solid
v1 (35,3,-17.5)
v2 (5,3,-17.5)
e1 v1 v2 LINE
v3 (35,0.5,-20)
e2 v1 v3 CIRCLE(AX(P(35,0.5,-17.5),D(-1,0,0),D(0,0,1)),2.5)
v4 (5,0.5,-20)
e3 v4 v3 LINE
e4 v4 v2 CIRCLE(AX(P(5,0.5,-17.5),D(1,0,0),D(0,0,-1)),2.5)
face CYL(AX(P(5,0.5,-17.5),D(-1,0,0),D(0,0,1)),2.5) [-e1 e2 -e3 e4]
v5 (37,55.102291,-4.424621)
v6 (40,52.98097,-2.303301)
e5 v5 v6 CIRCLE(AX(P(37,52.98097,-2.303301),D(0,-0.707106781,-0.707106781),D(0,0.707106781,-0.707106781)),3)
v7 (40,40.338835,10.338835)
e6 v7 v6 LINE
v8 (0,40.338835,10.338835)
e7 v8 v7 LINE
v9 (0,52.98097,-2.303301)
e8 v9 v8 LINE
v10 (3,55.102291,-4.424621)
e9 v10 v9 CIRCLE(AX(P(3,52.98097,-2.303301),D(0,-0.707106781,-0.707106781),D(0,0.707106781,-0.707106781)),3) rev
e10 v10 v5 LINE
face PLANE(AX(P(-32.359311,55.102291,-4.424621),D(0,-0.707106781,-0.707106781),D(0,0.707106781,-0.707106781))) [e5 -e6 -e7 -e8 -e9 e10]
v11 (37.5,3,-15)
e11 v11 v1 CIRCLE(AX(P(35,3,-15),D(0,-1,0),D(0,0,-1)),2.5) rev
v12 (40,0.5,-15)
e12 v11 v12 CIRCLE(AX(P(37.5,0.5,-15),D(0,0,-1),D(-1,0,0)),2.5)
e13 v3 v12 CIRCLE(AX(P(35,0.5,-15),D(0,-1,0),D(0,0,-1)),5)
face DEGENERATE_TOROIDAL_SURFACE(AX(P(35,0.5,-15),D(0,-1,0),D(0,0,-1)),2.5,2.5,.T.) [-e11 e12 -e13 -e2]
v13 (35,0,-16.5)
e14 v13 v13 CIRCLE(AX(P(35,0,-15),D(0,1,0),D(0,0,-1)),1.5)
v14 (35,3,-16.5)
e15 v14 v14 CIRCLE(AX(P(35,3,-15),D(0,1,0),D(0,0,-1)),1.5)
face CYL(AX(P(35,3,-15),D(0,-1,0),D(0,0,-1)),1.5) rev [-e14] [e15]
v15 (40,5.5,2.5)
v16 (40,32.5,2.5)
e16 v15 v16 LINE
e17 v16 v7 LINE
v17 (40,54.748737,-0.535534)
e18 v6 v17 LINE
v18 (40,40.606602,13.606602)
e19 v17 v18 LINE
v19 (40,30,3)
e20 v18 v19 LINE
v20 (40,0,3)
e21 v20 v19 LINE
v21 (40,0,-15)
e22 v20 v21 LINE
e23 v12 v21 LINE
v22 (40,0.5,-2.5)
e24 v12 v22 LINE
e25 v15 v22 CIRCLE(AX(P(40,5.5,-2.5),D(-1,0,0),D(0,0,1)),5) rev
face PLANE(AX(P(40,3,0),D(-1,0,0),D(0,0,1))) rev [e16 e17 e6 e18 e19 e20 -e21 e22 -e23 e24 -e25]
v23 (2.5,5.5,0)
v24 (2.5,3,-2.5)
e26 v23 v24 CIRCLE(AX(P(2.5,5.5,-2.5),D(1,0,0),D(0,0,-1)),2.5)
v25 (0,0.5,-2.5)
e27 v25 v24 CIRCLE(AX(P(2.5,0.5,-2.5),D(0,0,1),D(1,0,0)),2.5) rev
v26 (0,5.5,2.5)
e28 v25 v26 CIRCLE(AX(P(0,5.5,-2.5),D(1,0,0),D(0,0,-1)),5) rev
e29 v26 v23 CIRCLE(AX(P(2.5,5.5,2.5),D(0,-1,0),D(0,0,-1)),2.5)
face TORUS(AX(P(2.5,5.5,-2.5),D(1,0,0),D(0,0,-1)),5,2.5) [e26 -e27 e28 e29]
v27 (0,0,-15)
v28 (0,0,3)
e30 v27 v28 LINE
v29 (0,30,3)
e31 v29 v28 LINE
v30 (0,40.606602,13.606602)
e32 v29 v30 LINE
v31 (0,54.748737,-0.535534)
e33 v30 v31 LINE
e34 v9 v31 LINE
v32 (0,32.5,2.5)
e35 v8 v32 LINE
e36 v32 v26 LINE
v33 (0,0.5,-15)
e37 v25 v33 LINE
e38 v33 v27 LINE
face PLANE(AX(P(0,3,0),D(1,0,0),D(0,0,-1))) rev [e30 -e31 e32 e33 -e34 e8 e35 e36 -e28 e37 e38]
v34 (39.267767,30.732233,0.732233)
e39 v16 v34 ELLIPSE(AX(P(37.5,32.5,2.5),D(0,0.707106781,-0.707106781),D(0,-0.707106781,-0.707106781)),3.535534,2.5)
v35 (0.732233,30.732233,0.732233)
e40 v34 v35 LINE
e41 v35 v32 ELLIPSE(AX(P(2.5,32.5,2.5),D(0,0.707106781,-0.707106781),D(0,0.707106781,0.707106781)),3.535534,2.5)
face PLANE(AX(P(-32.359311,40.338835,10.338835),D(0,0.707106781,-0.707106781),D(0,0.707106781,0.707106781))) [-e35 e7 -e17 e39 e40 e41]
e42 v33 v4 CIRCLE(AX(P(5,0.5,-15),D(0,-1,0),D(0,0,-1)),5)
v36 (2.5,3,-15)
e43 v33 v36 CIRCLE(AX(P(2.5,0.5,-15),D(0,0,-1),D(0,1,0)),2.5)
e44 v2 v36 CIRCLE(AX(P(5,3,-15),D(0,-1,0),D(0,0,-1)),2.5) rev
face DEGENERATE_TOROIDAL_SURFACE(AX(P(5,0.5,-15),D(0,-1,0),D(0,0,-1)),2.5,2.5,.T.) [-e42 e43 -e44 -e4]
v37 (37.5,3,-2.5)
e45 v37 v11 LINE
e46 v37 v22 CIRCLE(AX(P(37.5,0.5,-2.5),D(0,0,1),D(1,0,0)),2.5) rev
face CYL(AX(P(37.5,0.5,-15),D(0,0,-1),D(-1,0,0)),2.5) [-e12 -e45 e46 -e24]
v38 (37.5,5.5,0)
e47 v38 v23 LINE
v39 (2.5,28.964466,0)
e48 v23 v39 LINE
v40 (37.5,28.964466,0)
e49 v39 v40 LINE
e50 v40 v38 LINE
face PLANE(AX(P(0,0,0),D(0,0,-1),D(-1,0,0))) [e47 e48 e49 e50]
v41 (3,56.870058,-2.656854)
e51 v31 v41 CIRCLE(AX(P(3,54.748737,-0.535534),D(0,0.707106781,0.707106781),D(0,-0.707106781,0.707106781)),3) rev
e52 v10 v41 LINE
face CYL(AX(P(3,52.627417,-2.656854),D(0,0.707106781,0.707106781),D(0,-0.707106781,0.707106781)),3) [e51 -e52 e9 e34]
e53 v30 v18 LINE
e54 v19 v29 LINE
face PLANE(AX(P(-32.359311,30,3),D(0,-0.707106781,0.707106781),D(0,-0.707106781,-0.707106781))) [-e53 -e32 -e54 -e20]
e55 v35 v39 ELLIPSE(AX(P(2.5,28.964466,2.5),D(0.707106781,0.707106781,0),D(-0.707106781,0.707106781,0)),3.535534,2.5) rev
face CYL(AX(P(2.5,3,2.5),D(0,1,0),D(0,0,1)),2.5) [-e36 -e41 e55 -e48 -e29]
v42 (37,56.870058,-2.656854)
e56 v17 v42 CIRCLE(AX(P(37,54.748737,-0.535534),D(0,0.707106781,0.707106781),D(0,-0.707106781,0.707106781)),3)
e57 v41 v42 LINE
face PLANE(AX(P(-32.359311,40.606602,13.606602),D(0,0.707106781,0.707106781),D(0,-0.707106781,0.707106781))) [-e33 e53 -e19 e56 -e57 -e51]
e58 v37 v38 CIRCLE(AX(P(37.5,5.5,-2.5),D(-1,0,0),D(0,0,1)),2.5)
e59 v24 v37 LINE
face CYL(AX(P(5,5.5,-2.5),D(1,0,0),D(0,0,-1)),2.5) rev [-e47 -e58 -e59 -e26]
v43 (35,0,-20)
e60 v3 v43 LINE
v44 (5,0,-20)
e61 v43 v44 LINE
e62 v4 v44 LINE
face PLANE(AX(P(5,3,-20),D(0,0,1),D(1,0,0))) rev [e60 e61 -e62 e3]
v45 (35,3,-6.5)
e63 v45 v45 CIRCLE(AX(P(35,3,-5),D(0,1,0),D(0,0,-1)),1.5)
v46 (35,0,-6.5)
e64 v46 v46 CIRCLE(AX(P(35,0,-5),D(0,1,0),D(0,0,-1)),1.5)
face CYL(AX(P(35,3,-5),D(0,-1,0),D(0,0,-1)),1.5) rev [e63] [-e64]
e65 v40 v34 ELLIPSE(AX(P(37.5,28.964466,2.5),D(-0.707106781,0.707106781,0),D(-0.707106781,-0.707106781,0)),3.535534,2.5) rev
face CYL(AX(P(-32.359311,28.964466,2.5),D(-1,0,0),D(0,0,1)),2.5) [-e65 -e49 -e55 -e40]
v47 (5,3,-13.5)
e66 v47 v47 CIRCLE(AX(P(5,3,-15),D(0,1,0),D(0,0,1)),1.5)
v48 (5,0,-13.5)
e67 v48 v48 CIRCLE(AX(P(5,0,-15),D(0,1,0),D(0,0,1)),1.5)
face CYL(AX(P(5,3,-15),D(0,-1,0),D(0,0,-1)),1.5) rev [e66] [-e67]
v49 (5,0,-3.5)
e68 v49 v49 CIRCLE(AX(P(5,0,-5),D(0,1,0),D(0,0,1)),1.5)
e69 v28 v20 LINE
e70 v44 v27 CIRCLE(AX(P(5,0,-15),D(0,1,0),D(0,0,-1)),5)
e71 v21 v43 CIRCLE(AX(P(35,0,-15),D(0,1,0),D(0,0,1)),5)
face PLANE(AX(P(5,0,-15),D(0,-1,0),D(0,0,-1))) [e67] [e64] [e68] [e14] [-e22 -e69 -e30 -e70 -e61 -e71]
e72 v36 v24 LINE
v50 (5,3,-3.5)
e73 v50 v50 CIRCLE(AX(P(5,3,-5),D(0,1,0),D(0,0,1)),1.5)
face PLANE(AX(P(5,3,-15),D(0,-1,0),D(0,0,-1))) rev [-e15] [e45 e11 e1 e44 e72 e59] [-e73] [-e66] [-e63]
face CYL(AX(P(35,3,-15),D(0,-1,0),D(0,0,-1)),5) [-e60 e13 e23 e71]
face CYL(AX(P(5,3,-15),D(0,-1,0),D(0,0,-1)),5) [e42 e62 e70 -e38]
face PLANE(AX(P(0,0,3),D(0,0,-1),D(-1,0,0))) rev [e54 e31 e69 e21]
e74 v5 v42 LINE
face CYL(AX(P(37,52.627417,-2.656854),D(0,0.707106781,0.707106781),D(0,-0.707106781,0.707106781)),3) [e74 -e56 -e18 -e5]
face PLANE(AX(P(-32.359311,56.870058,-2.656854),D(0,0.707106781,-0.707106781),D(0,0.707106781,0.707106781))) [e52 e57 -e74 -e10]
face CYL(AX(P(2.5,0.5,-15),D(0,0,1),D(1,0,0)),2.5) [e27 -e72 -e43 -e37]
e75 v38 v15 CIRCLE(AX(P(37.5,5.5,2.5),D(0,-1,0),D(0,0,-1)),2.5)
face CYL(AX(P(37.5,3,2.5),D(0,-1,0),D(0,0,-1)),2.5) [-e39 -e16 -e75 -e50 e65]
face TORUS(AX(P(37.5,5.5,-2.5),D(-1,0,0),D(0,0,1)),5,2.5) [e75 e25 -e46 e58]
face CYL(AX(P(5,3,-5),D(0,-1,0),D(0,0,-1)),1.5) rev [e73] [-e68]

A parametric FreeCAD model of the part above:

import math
import FreeCAD as App
import Part
import Sketcher
from FreeCAD import Vector
Q = App.Units.Quantity


def edges_at(feature, points):
    """Names of the edges that pass closest to the given points."""
    edges = feature.Shape.Edges
    near = lambda p: min(range(len(edges)), key=lambda i: edges[i].distToShape(Part.Vertex(*p))[0])
    return sorted({f"Edge{near(p) + 1}" for p in points})


def add_polygon(sketch, points):
    """Adds a closed chain of lines whose ends are joined by coincident constraints."""
    first, n = sketch.GeometryCount, len(points)
    for a, b in zip(points, points[1:] + points[:1]):
        sketch.addGeometry(Part.LineSegment(App.Vector(*a, 0), App.Vector(*b, 0)), False)
    for i in range(n):
        sketch.addConstraint(Sketcher.Constraint("Coincident", first + i, 2, first + (i + 1) % n, 1))

doc = App.newDocument("Part")
body = doc.addObject("PartDesign::Body", "Body")

sketch1 = body.newObject("Sketcher::SketchObject", "Sketch")
sketch1.AttachmentSupport = (doc.getObject("XZ_Plane"), [""])
sketch1.MapMode = "FlatFace"
sketch1.addGeometry(Part.LineSegment(Vector(40, 0, 0), Vector(40, -15, 0)), False)
sketch1.addGeometry(Part.ArcOfCircle(Part.Circle(Vector(35, -15, 0), Vector(0, 0, 1), 5), math.radians(-90), math.radians(0)), False)
sketch1.addGeometry(Part.LineSegment(Vector(35, -20, 0), Vector(5, -20, 0)), False)
sketch1.addGeometry(Part.ArcOfCircle(Part.Circle(Vector(5, -15, 0), Vector(0, 0, 1), 5), math.radians(180), math.radians(270)), False)
sketch1.addGeometry(Part.LineSegment(Vector(0, -15, 0), Vector(0, 0, 0)), False)
sketch1.addGeometry(Part.LineSegment(Vector(0, 0, 0), Vector(40, 0, 0)), False)
sketch1.addGeometry(Part.Circle(Vector(5, -5, 0), Vector(0, 0, 1), 1.5), False)
sketch1.addGeometry(Part.Circle(Vector(35, -5, 0), Vector(0, 0, 1), 1.5), False)
sketch1.addGeometry(Part.Circle(Vector(5, -15, 0), Vector(0, 0, 1), 1.5), False)
sketch1.addGeometry(Part.Circle(Vector(35, -15, 0), Vector(0, 0, 1), 1.5), False)
sketch1.addConstraint(Sketcher.Constraint("Tangent", 0, 2, 1, 2))
sketch1.addConstraint(Sketcher.Constraint("Tangent", 1, 1, 2, 1))
sketch1.addConstraint(Sketcher.Constraint("Tangent", 2, 2, 3, 2))
sketch1.addConstraint(Sketcher.Constraint("Tangent", 3, 1, 4, 1))
sketch1.addConstraint(Sketcher.Constraint("Coincident", 4, 2, 5, 1))
sketch1.addConstraint(Sketcher.Constraint("Coincident", 5, 2, 0, 1))
sketch1.addConstraint(Sketcher.Constraint("Vertical", 0))
sketch1.addConstraint(Sketcher.Constraint("Horizontal", 2))
sketch1.addConstraint(Sketcher.Constraint("Vertical", 4))
sketch1.addConstraint(Sketcher.Constraint("Horizontal", 5))
sketch1.addConstraint(Sketcher.Constraint("Coincident", 4, 2, -1, 1))
sketch1.addConstraint(Sketcher.Constraint("Coincident", 8, 3, 3, 3))
sketch1.addConstraint(Sketcher.Constraint("Coincident", 9, 3, 1, 3))
sketch1.addConstraint(Sketcher.Constraint("Equal", 1, 3))
sketch1.addConstraint(Sketcher.Constraint("Equal", 6, 7))
sketch1.addConstraint(Sketcher.Constraint("Equal", 7, 8))
sketch1.addConstraint(Sketcher.Constraint("Equal", 8, 9))
sketch1.addConstraint(Sketcher.Constraint("Horizontal", 6, 3, 7, 3))
sketch1.addConstraint(Sketcher.Constraint("Vertical", 3, 3, 6, 3))
sketch1.addConstraint(Sketcher.Constraint("Vertical", 1, 3, 7, 3))
sketch1.addConstraint(Sketcher.Constraint("Diameter", 6, 3.0))
sketch1.addConstraint(Sketcher.Constraint("Radius", 1, 5.0))
sketch1.addConstraint(Sketcher.Constraint("DistanceX", 2, 2, 2, 1, 30.0))
sketch1.addConstraint(Sketcher.Constraint("DistanceY", 0, 2, 0, 1, 15.0))
sketch1.addConstraint(Sketcher.Constraint("DistanceY", 6, 3, -1, 1, 5.0))
pad1 = body.newObject("PartDesign::Pad", "Pad")
pad1.Profile = sketch1
pad1.Length = 3
pad1.Reversed = True

sketch2 = body.newObject("Sketcher::SketchObject", "Sketch001")
sketch2.AttachmentSupport = (doc.getObject("XY_Plane"), [""])
sketch2.MapMode = "FlatFace"
add_polygon(sketch2, [(0, 30), (0, 0), (40, 0), (40, 30)])
sketch2.addConstraint(Sketcher.Constraint("Vertical", 0))
sketch2.addConstraint(Sketcher.Constraint("Horizontal", 1))
sketch2.addConstraint(Sketcher.Constraint("Vertical", 2))
sketch2.addConstraint(Sketcher.Constraint("Horizontal", 3))
sketch2.addConstraint(Sketcher.Constraint("Coincident", 0, 2, -1, 1))
sketch2.addConstraint(Sketcher.Constraint("DistanceX", 1, 1, 1, 2, 40.0))
sketch2.addConstraint(Sketcher.Constraint("DistanceY", 0, 2, 0, 1, 30.0))
pad2 = body.newObject("PartDesign::Pad", "Pad001")
pad2.Profile = sketch2
pad2.Length = 3

sketch3 = body.newObject("Sketcher::SketchObject", "Sketch002")
sketch3.AttachmentSupport = (doc.getObject("YZ_Plane"), [""])
sketch3.MapMode = "FlatFace"
sketch3.AttachmentOffset = App.Placement(Vector(0, 0, 40), App.Rotation())
add_polygon(sketch3, [(40.606602, 13.606602), (30, 3), (30, 0), (40.338835, 10.338835), (55.102291, -4.424621), (56.870058, -2.656854), (42.727922, 11.485281)])
sketch3.addConstraint(Sketcher.Constraint("Vertical", 1))
sketch3.addConstraint(Sketcher.Constraint("PointOnObject", 1, 2, -1))
sketch3.addConstraint(Sketcher.Constraint("Parallel", 0, 2))
sketch3.addConstraint(Sketcher.Constraint("Perpendicular", 2, 3))
sketch3.addConstraint(Sketcher.Constraint("Perpendicular", 3, 4))
sketch3.addConstraint(Sketcher.Constraint("Perpendicular", 4, 5))
sketch3.addConstraint(Sketcher.Constraint("Parallel", 5, 6))
sketch3.addConstraint(Sketcher.Constraint("DistanceY", 1, 2, 1, 1, 3.0))
sketch3.addConstraint(Sketcher.Constraint("Angle", 0, Q("-135 deg")))
sketch3.addConstraint(Sketcher.Constraint("Distance", 0, 15.0))
sketch3.addConstraint(Sketcher.Constraint("Distance", 5, 20.0))
sketch3.addConstraint(Sketcher.Constraint("Distance", 6, 3.0))
sketch3.addConstraint(Sketcher.Constraint("DistanceX", -1, 1, 0, 2, 30.0))
sketch3.addConstraint(Sketcher.Constraint("Distance", 4, 2.5))
pad3 = body.newObject("PartDesign::Pad", "Pad002")
pad3.Profile = sketch3
pad3.Length = 40
pad3.Reversed = True

sketch4 = body.newObject("Sketcher::SketchObject", "Sketch003")
sketch4.Placement = App.Placement(Vector(0, 27.106602, 27.106602), App.Rotation(Vector(1, 0, 0), Vector(0, 0.707106781, -0.707106781), Vector(0, 0.707106781, 0.707106781), "ZXY"))
sketch4.addGeometry(Part.LineSegment(Vector(3, 42.091883, 0), Vector(0, 42.091883, 0)), False)
sketch4.addGeometry(Part.LineSegment(Vector(0, 42.091883, 0), Vector(0, 39.091883, 0)), False)
sketch4.addGeometry(Part.ArcOfCircle(Part.Circle(Vector(3, 39.091883, 0), Vector(0, 0, 1), 3), math.radians(90), math.radians(180)), False)
sketch4.addGeometry(Part.LineSegment(Vector(40, 42.091883, 0), Vector(37, 42.091883, 0)), False)
sketch4.addGeometry(Part.ArcOfCircle(Part.Circle(Vector(37, 39.091883, 0), Vector(0, 0, 1), 3), math.radians(0), math.radians(90)), False)
sketch4.addGeometry(Part.LineSegment(Vector(40, 39.091883, 0), Vector(40, 42.091883, 0)), False)
sketch4.addConstraint(Sketcher.Constraint("Coincident", 0, 2, 1, 1))
sketch4.addConstraint(Sketcher.Constraint("Tangent", 1, 2, 2, 2))
sketch4.addConstraint(Sketcher.Constraint("Tangent", 2, 1, 0, 1))
sketch4.addConstraint(Sketcher.Constraint("Tangent", 3, 2, 4, 2))
sketch4.addConstraint(Sketcher.Constraint("Tangent", 4, 1, 5, 1))
sketch4.addConstraint(Sketcher.Constraint("Coincident", 5, 2, 3, 1))
sketch4.addConstraint(Sketcher.Constraint("Horizontal", 0))
sketch4.addConstraint(Sketcher.Constraint("Vertical", 1))
sketch4.addConstraint(Sketcher.Constraint("Horizontal", 3))
sketch4.addConstraint(Sketcher.Constraint("Vertical", 5))
sketch4.addConstraint(Sketcher.Constraint("Equal", 2, 4))
sketch4.addConstraint(Sketcher.Constraint("PointOnObject", 0, 2, -2))
sketch4.addConstraint(Sketcher.Constraint("Horizontal", 2, 3, 4, 3))
sketch4.addConstraint(Sketcher.Constraint("Radius", 2, 3.0))
sketch4.addConstraint(Sketcher.Constraint("DistanceX", -1, 1, 4, 3, 37.0))
sketch4.addConstraint(Sketcher.Constraint("DistanceY", -1, 1, 2, 3, 39.091883))
pocket1 = body.newObject("PartDesign::Pocket", "Pocket")
pocket1.Profile = sketch4
pocket1.Length = 3
doc.recompute()

fillet = body.newObject("PartDesign::Fillet", "Fillet")
fillet.Base = (pocket1, edges_at(pocket1, [
    (40, 3, -7.5),
    (38.536, 3, -18.536),
    (20, 3, -20),
    (1.464, 3, -18.536),
    (0, 16.5, 0),
    (40, 16.5, 0),
    (20, 30, 0),
    (0, 3, -7.5),
    (20, 3, 0),
]))
fillet.Radius = 2.5

doc.recompute()
